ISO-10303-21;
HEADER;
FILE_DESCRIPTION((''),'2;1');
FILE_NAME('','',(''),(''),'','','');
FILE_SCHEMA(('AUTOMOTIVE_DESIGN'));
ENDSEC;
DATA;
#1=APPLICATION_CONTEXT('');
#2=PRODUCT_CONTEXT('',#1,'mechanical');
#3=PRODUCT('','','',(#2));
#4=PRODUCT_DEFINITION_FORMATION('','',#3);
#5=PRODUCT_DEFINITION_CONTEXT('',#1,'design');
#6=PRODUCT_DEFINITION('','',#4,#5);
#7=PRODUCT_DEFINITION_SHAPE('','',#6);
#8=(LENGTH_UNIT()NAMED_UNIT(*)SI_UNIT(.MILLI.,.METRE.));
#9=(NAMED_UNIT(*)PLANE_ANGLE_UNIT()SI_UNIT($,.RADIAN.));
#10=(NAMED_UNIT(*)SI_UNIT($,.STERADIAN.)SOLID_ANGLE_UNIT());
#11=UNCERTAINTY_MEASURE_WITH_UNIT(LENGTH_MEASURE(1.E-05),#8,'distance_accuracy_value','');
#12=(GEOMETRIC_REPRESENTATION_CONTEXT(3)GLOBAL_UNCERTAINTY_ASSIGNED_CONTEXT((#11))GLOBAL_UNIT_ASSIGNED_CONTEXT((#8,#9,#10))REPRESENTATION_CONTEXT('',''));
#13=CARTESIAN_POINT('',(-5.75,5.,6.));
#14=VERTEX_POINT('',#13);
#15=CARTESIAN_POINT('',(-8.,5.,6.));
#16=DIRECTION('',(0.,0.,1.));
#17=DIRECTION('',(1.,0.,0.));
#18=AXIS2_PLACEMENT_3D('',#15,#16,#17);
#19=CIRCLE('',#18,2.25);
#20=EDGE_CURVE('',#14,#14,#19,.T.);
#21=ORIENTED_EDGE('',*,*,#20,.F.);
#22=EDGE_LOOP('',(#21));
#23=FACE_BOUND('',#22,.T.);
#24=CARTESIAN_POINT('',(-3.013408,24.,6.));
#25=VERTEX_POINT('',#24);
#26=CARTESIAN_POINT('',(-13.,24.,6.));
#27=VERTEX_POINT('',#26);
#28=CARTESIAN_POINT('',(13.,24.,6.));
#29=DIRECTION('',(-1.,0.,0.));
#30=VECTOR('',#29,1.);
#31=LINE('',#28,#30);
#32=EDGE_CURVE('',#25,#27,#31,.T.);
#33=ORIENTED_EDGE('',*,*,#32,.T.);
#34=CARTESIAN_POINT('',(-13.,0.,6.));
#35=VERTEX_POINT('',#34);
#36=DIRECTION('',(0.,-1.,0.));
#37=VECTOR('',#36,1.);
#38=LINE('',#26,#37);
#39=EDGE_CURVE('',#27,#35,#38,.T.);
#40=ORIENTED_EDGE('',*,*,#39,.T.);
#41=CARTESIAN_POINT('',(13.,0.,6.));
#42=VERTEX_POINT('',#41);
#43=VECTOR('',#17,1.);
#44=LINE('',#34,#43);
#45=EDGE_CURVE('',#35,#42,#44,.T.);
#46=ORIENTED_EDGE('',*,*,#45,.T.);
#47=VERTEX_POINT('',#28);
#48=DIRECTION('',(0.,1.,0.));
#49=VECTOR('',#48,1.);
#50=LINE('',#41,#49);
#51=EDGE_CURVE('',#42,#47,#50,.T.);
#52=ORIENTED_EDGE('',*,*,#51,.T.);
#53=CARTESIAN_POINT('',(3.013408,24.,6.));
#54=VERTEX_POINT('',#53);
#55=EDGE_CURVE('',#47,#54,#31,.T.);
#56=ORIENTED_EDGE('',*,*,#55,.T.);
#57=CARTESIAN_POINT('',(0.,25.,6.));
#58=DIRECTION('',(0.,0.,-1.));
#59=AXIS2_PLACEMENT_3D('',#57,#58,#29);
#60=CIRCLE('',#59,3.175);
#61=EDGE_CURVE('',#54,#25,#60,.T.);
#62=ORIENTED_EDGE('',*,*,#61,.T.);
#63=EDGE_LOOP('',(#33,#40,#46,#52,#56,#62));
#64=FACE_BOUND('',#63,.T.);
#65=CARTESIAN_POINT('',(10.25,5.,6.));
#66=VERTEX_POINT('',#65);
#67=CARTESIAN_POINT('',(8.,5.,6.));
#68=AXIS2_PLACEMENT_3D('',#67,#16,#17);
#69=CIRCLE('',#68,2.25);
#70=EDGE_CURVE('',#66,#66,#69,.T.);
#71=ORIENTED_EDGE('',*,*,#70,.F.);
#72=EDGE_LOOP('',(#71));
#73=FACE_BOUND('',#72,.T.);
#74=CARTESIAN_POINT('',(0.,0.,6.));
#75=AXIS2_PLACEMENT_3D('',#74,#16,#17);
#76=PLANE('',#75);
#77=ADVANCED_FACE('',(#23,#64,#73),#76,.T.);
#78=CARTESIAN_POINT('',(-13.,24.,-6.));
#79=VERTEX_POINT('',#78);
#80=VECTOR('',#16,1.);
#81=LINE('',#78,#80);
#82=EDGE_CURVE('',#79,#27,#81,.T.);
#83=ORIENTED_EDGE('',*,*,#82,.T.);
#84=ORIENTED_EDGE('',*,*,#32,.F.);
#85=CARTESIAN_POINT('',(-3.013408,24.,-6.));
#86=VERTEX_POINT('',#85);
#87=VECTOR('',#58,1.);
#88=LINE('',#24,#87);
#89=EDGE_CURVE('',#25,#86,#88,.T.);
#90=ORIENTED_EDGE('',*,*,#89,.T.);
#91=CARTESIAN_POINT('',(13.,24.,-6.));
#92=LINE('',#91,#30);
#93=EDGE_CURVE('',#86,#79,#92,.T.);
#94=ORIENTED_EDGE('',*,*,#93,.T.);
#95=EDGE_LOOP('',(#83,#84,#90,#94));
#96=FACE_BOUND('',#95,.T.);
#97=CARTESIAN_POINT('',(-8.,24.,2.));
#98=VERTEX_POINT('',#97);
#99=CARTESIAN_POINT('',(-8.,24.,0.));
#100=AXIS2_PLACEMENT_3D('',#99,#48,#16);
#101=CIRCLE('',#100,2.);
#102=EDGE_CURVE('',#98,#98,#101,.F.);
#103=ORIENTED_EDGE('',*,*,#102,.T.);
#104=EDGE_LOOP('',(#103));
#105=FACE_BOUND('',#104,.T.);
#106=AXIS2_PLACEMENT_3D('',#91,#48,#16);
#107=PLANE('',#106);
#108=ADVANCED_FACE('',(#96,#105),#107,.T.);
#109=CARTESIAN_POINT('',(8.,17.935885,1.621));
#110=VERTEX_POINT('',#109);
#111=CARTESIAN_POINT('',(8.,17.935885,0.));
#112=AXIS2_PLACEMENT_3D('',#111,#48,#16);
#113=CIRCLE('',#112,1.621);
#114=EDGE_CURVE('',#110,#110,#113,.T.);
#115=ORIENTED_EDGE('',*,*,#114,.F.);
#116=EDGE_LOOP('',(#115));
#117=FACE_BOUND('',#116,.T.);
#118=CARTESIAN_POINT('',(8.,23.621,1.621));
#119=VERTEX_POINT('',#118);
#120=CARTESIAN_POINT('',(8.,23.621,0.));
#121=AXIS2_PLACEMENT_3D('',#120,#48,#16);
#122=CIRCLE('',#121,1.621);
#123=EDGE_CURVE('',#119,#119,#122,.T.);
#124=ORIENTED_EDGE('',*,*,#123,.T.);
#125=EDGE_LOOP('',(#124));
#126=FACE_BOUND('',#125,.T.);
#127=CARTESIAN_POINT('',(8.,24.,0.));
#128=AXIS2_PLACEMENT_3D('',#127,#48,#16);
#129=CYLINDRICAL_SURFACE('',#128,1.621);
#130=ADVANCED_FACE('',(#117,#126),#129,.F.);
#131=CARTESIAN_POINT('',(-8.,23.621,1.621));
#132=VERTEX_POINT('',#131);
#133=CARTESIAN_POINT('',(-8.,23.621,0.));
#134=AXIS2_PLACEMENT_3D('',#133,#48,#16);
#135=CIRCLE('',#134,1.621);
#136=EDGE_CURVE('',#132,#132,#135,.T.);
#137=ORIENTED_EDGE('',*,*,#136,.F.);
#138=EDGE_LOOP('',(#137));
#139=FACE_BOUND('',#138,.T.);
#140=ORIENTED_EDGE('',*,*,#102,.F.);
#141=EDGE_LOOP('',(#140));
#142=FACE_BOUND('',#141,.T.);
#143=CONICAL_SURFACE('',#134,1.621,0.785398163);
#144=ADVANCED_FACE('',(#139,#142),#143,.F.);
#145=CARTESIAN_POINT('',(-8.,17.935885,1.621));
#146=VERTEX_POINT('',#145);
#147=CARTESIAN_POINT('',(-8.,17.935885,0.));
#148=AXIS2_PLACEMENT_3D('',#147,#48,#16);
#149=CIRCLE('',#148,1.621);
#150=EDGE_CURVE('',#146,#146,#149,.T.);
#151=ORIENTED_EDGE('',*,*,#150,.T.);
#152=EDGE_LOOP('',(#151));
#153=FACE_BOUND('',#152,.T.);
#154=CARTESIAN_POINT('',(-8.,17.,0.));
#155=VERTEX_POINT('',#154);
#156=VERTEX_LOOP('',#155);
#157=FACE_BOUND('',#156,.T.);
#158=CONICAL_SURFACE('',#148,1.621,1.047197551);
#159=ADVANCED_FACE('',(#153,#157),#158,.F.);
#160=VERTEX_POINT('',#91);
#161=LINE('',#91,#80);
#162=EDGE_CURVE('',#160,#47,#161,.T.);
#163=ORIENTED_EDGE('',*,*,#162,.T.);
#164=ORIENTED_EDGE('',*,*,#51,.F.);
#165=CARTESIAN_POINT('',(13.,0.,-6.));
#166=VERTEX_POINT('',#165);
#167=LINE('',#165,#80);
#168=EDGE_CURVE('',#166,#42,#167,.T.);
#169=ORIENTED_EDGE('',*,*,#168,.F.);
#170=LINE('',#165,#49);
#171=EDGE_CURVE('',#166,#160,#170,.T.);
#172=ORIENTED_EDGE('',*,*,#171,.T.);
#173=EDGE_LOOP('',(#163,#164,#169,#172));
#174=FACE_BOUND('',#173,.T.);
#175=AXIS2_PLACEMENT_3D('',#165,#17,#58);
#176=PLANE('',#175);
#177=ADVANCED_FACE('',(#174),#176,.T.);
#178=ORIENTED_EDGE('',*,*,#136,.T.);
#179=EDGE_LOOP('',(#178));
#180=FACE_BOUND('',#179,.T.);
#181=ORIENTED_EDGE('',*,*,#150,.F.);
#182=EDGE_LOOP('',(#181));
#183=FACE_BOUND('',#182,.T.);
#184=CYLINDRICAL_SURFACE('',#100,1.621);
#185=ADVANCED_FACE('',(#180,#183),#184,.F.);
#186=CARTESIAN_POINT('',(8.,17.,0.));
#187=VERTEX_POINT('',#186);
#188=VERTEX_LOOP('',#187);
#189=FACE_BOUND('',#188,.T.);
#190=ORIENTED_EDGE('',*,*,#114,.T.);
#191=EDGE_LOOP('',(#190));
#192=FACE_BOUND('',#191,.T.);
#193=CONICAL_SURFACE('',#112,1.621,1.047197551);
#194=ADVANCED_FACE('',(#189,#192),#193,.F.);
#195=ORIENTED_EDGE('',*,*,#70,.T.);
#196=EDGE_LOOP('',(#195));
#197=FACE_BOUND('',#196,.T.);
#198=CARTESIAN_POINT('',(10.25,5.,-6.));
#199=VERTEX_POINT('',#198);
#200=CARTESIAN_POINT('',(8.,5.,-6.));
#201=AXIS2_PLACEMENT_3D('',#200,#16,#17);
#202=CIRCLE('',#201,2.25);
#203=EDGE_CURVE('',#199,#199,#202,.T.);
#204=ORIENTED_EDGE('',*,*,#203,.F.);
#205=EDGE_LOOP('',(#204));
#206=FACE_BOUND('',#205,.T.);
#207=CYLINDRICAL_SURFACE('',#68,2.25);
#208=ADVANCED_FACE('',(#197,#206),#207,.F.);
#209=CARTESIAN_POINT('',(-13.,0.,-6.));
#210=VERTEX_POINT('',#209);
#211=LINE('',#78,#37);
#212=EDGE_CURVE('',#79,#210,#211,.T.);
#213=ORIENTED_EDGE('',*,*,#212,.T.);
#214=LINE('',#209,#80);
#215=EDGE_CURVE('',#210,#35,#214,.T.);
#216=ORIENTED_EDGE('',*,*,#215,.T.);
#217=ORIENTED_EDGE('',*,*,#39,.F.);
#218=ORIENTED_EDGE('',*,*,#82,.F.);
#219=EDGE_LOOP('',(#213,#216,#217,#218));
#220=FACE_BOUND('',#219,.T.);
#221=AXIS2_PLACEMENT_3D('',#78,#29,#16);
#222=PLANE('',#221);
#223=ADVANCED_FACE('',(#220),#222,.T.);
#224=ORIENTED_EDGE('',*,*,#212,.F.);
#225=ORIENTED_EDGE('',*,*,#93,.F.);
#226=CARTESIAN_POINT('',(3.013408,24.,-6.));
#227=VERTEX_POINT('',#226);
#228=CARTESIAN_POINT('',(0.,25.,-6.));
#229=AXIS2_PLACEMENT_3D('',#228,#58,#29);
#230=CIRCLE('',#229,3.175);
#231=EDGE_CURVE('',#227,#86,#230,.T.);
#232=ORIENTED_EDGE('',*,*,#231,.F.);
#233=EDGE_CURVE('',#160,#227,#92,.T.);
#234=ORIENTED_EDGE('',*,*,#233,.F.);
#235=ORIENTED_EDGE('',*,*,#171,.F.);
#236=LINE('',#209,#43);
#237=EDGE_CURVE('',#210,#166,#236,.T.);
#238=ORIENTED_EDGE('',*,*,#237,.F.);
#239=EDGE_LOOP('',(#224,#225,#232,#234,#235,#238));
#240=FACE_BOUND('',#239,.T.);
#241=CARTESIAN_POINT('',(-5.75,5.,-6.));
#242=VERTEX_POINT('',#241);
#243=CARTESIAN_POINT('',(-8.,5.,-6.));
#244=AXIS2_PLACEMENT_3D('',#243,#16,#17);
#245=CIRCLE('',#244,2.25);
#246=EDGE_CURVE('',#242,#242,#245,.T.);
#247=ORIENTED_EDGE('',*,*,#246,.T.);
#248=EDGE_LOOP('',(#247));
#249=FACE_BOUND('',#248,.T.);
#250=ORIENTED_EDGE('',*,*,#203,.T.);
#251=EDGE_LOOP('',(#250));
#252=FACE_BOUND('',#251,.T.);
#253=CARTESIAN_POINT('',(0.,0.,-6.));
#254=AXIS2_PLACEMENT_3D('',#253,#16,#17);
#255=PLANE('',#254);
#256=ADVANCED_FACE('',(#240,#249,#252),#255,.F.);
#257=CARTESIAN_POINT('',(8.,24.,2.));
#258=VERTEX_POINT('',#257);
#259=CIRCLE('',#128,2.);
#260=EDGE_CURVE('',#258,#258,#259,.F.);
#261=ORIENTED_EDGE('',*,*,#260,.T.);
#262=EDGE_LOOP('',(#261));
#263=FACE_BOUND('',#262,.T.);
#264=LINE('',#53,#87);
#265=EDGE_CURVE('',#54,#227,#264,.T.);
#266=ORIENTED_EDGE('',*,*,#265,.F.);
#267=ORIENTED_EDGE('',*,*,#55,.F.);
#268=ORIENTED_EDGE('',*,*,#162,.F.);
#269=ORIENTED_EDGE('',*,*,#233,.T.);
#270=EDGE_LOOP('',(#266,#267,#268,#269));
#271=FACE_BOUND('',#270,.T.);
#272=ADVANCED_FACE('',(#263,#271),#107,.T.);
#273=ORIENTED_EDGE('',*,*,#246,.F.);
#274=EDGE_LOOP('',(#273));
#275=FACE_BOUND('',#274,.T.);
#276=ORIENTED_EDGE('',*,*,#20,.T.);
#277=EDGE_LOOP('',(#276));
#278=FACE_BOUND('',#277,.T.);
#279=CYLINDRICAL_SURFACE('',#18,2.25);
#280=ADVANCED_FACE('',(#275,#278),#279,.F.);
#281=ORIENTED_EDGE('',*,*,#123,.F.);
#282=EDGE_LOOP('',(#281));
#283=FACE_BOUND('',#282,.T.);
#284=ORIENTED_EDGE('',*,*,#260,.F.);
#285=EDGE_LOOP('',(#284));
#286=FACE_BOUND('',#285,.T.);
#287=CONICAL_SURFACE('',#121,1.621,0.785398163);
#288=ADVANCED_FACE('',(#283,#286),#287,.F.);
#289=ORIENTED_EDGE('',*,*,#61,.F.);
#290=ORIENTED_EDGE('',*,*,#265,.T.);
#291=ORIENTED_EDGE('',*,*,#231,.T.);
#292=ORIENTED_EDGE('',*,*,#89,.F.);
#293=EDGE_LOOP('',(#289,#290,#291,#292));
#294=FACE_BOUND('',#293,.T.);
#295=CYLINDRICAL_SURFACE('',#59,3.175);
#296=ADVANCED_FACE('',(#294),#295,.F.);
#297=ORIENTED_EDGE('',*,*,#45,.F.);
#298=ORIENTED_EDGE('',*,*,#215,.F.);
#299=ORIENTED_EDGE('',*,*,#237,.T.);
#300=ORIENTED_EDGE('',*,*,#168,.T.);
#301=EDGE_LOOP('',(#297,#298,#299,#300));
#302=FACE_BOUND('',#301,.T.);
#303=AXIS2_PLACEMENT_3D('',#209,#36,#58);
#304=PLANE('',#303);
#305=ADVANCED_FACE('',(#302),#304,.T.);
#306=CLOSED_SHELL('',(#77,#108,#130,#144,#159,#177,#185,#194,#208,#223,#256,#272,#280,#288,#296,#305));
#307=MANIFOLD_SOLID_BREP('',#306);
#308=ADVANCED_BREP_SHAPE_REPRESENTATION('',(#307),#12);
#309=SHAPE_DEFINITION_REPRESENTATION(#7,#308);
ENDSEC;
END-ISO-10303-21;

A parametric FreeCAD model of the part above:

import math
import FreeCAD as App
import Part
import Sketcher
Q = App.Units.Quantity


def edges_at(feature, points):
    """Names of the edges that pass closest to the given points."""
    edges = feature.Shape.Edges
    near = lambda p: min(range(len(edges)), key=lambda i: edges[i].distToShape(Part.Vertex(*p))[0])
    return sorted({f"Edge{near(p) + 1}" for p in points})

doc = App.newDocument("Part")
body = doc.addObject("PartDesign::Body", "Body")

# Sketch on XY plane
sketch1 = body.newObject("Sketcher::SketchObject", "Sketch")
sketch1.AttachmentSupport = (doc.getObject("XY_Plane"), [""])
sketch1.MapMode = "FlatFace"
sketch1.AttachmentOffset = App.Placement(App.Vector(0, 0, 6), App.Rotation())
sketch1.addGeometry(Part.LineSegment(App.Vector(-13, 24, 0), App.Vector(-13, 0, 0)), False)
sketch1.addGeometry(Part.LineSegment(App.Vector(-13, 0, 0), App.Vector(13, 0, 0)), False)
sketch1.addGeometry(Part.LineSegment(App.Vector(13, 0, 0), App.Vector(13, 24, 0)), False)
sketch1.addGeometry(Part.LineSegment(App.Vector(13, 24, 0), App.Vector(-13, 24, 0)), False)
sketch1.addConstraint(Sketcher.Constraint("Coincident", 0, 2, 1, 1))
sketch1.addConstraint(Sketcher.Constraint("Coincident", 1, 2, 2, 1))
sketch1.addConstraint(Sketcher.Constraint("Coincident", 2, 2, 3, 1))
sketch1.addConstraint(Sketcher.Constraint("Coincident", 3, 2, 0, 1))
sketch1.addConstraint(Sketcher.Constraint("Vertical", 0))
sketch1.addConstraint(Sketcher.Constraint("Horizontal", 1))
sketch1.addConstraint(Sketcher.Constraint("Vertical", 2))
sketch1.addConstraint(Sketcher.Constraint("Horizontal", 3))
sketch1.addConstraint(Sketcher.Constraint("Symmetric", 0, 2, 1, 2, -1, 1))
sketch1.addConstraint(Sketcher.Constraint("DistanceX", 1, 1, 1, 2, Q("26 mm")))
sketch1.addConstraint(Sketcher.Constraint("DistanceY", 0, 2, 0, 1, Q("24 mm")))
pad1 = body.newObject("PartDesign::Pad", "Pad")
pad1.Profile = sketch1
pad1.Length = 12
pad1.Reversed = True

# Sketch on XY plane
sketch2 = body.newObject("Sketcher::SketchObject", "Sketch001")
sketch2.AttachmentSupport = (doc.getObject("XY_Plane"), [""])
sketch2.MapMode = "FlatFace"
sketch2.AttachmentOffset = App.Placement(App.Vector(0, 0, -6), App.Rotation())
sketch2.addGeometry(Part.LineSegment(App.Vector(-3.013408, 24, 0), App.Vector(3.013408, 24, 0)), False)
sketch2.addGeometry(Part.ArcOfCircle(Part.Circle(App.Vector(0, 25, 0), App.Vector(0, 0, 1), 3.175), math.radians(-161.641563), math.radians(-18.358437)), False)
sketch2.addConstraint(Sketcher.Constraint("Coincident", 0, 1, 1, 1))
sketch2.addConstraint(Sketcher.Constraint("Coincident", 1, 2, 0, 2))
sketch2.addConstraint(Sketcher.Constraint("Horizontal", 0))
sketch2.addConstraint(Sketcher.Constraint("PointOnObject", 1, 3, -2))
sketch2.addConstraint(Sketcher.Constraint("DistanceY", -1, 1, 1, 3, Q("25 mm")))
sketch2.addConstraint(Sketcher.Constraint("DistanceY", -1, 1, 0, 1, Q("24 mm")))
sketch2.addConstraint(Sketcher.Constraint("Radius", 1, Q("3.175 mm")))
pocket1 = body.newObject("PartDesign::Pocket", "Pocket")
pocket1.Profile = sketch2
pocket1.Type = "ThroughAll"
pocket1.Reversed = True

# Sketch on XZ plane
sketch3 = body.newObject("Sketcher::SketchObject", "Sketch002")
sketch3.AttachmentSupport = (doc.getObject("XZ_Plane"), [""])
sketch3.MapMode = "FlatFace"
sketch3.AttachmentOffset = App.Placement(App.Vector(0, 0, -24), App.Rotation())
sketch3.addGeometry(Part.Circle(App.Vector(8, 0, 0), App.Vector(0, 0, 1), 1.621), False)
sketch3.addGeometry(Part.Circle(App.Vector(-8, 0, 0), App.Vector(0, 0, 1), 1.621), False)
sketch3.addConstraint(Sketcher.Constraint("Equal", 0, 1))
sketch3.addConstraint(Sketcher.Constraint("Symmetric", 0, 3, 1, 3, -1, 1))
sketch3.addConstraint(Sketcher.Constraint("PointOnObject", 0, 3, -1))
sketch3.addConstraint(Sketcher.Constraint("Diameter", 0, Q("3.242 mm")))
sketch3.addConstraint(Sketcher.Constraint("DistanceX", -1, 1, 0, 3, Q("8 mm")))
doc.recompute()
hole = body.newObject("PartDesign::Hole", "Hole")
hole.Profile = sketch3
hole.ThreadType = "None"
hole.Diameter = 3.242
hole.DepthType = "Dimension"
hole.Depth = 6.064115
hole.DrillPoint = "Angled"
hole.DrillPointAngle = 120
hole.Reversed = True

# Sketch on XY plane
sketch4 = body.newObject("Sketcher::SketchObject", "Sketch003")
sketch4.AttachmentSupport = (doc.getObject("XY_Plane"), [""])
sketch4.MapMode = "FlatFace"
sketch4.AttachmentOffset = App.Placement(App.Vector(0, 0, 6), App.Rotation())
sketch4.addGeometry(Part.Circle(App.Vector(8, 5, 0), App.Vector(0, 0, 1), 2.25), False)
sketch4.addGeometry(Part.Circle(App.Vector(-8, 5, 0), App.Vector(0, 0, 1), 2.25), False)
sketch4.addConstraint(Sketcher.Constraint("Equal", 0, 1))
sketch4.addConstraint(Sketcher.Constraint("Symmetric", 0, 3, 1, 3, -2))
sketch4.addConstraint(Sketcher.Constraint("Diameter", 0, Q("4.5 mm")))
sketch4.addConstraint(Sketcher.Constraint("DistanceX", -1, 1, 0, 3, Q("8 mm")))
sketch4.addConstraint(Sketcher.Constraint("DistanceY", -1, 1, 0, 3, Q("5 mm")))
doc.recompute()
hole2 = body.newObject("PartDesign::Hole", "Hole001")
hole2.Profile = sketch4
hole2.ThreadType = "None"
hole2.Diameter = 4.5
hole2.DepthType = "ThroughAll"
doc.recompute()

chamfer = body.newObject("PartDesign::Chamfer", "Chamfer")
chamfer.Base = (hole2, edges_at(hole2, [(-6.379, 24, 0), (9.621, 24, 0)]))
chamfer.Size = 0.379

doc.recompute()
